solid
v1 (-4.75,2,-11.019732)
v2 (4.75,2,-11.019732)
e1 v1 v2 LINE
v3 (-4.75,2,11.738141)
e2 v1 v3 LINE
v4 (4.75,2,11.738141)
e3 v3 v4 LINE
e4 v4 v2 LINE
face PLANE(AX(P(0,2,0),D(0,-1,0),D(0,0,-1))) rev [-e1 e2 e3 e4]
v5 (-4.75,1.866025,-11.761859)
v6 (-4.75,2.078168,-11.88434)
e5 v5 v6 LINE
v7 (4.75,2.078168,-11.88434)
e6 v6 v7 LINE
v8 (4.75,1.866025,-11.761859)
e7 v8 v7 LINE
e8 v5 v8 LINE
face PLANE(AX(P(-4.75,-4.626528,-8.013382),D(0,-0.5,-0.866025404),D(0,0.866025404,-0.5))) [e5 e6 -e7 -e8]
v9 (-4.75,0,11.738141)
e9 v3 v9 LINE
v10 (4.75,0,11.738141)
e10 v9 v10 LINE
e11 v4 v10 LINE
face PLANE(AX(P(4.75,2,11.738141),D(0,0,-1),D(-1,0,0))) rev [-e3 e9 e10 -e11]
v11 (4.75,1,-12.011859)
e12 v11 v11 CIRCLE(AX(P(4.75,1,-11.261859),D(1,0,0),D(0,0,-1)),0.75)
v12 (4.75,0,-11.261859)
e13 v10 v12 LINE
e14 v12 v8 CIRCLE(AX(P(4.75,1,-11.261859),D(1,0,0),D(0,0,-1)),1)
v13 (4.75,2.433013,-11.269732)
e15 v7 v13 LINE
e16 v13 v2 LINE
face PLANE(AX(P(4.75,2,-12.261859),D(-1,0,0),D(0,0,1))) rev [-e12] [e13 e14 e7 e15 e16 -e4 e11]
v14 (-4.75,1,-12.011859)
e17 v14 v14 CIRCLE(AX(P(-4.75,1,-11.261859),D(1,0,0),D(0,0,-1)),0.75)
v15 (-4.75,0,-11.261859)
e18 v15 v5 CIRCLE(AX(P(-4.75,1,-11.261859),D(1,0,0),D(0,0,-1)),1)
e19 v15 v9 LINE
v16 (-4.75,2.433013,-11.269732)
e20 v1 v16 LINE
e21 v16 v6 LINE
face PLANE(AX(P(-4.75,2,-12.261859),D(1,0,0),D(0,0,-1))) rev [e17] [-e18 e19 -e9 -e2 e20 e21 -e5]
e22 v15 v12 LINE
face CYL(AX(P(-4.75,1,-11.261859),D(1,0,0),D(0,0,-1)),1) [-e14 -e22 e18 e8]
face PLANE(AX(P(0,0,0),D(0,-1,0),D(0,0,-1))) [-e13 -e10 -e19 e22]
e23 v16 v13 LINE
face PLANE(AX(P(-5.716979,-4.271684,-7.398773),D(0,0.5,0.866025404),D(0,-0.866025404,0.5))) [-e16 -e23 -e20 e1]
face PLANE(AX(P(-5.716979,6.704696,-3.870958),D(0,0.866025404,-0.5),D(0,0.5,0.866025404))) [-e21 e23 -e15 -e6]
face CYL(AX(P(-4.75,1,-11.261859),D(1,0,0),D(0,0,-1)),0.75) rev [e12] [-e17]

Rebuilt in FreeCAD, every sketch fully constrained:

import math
import FreeCAD as App
import Part
import Sketcher
Q = App.Units.Quantity

doc = App.newDocument("Part")
body = doc.addObject("PartDesign::Body", "Body")

# Sketch on XZ plane
sketch1 = body.newObject("Sketcher::SketchObject", "Sketch")
sketch1.AttachmentSupport = (doc.getObject("XZ_Plane"), [""])
sketch1.MapMode = "FlatFace"
sketch1.addGeometry(Part.LineSegment(App.Vector(-5, -12, 0), App.Vector(-5, 12, 0)), False)
sketch1.addGeometry(Part.LineSegment(App.Vector(-5, 12, 0), App.Vector(5, 12, 0)), False)
sketch1.addGeometry(Part.LineSegment(App.Vector(5, 12, 0), App.Vector(5, -12, 0)), False)
sketch1.addGeometry(Part.LineSegment(App.Vector(5, -12, 0), App.Vector(-5, -12, 0)), False)
sketch1.addConstraint(Sketcher.Constraint("Coincident", 0, 2, 1, 1))
sketch1.addConstraint(Sketcher.Constraint("Coincident", 1, 2, 2, 1))
sketch1.addConstraint(Sketcher.Constraint("Coincident", 2, 2, 3, 1))
sketch1.addConstraint(Sketcher.Constraint("Coincident", 3, 2, 0, 1))
sketch1.addConstraint(Sketcher.Constraint("Vertical", 0))
sketch1.addConstraint(Sketcher.Constraint("Horizontal", 1))
sketch1.addConstraint(Sketcher.Constraint("Vertical", 2))
sketch1.addConstraint(Sketcher.Constraint("Horizontal", 3))
sketch1.addConstraint(Sketcher.Constraint("DistanceY", 0, 1, 0, 2, 24.0))
sketch1.addConstraint(Sketcher.Constraint("DistanceX", 1, 1, 1, 2, 9.5))
sketch1.addConstraint(Sketcher.Constraint("DistanceX", 0, 2, -1, 1, 4.75))
sketch1.addConstraint(Sketcher.Constraint("DistanceY", -1, 1, 0, 2, 11.738141))
pad1 = body.newObject("PartDesign::Pad", "Pad")
pad1.Profile = sketch1
pad1.Length = 2
pad1.Reversed = True

# Sketch on YZ plane
sketch2 = body.newObject("Sketcher::SketchObject", "Sketch001")
sketch2.AttachmentSupport = (doc.getObject("YZ_Plane"), [""])
sketch2.MapMode = "FlatFace"
sketch2.AttachmentOffset = App.Placement(App.Vector(0, 0, 4.75), App.Rotation())
sketch2.addGeometry(Part.LineSegment(App.Vector(0, -12.26, 0), App.Vector(1, -12.26, 0)), False)
sketch2.addGeometry(Part.ArcOfCircle(Part.Circle(App.Vector(1, -11.26, 0), App.Vector(0, 0, 1), 1), math.radians(-180), math.radians(-90)), False)
sketch2.addGeometry(Part.LineSegment(App.Vector(0, -11.26, 0), App.Vector(0, -12.26, 0)), False)
sketch2.addGeometry(Part.LineSegment(App.Vector(2, -11.84, 0), App.Vector(1.87, -11.76, 0)), False)
sketch2.addGeometry(Part.ArcOfCircle(Part.Circle(App.Vector(1, -11.26, 0), App.Vector(0, 0, 1), 1), math.radians(-90), math.radians(-30)), False)
sketch2.addGeometry(Part.LineSegment(App.Vector(1, -12.26, 0), App.Vector(2, -12.26, 0)), False)
sketch2.addGeometry(Part.LineSegment(App.Vector(2, -12.26, 0), App.Vector(2, -11.84, 0)), False)
sketch2.addGeometry(Part.Circle(App.Vector(1, -11.26, 0), App.Vector(0, 0, 1), 0.75), False)
sketch2.addConstraint(Sketcher.Constraint("Tangent", 0, 2, 1, 2))
sketch2.addConstraint(Sketcher.Constraint("Tangent", 1, 1, 2, 1))
sketch2.addConstraint(Sketcher.Constraint("Coincident", 2, 2, 0, 1))
sketch2.addConstraint(Sketcher.Constraint("Coincident", 3, 2, 4, 2))
sketch2.addConstraint(Sketcher.Constraint("Tangent", 4, 1, 5, 1))
sketch2.addConstraint(Sketcher.Constraint("Coincident", 5, 2, 6, 1))
sketch2.addConstraint(Sketcher.Constraint("Coincident", 6, 2, 3, 1))
sketch2.addConstraint(Sketcher.Constraint("Horizontal", 0))
sketch2.addConstraint(Sketcher.Constraint("Vertical", 2))
sketch2.addConstraint(Sketcher.Constraint("Horizontal", 5))
sketch2.addConstraint(Sketcher.Constraint("Vertical", 6))
sketch2.addConstraint(Sketcher.Constraint("Coincident", 4, 3, 1, 3))
sketch2.addConstraint(Sketcher.Constraint("Coincident", 7, 3, 1, 3))
sketch2.addConstraint(Sketcher.Constraint("Equal", 1, 4))
sketch2.addConstraint(Sketcher.Constraint("PointOnObject", 1, 1, -2))
sketch2.addConstraint(Sketcher.Constraint("Equal", 0, 5))
sketch2.addConstraint(Sketcher.Constraint("Radius", 1, 1.0))
sketch2.addConstraint(Sketcher.Constraint("Diameter", 7, 1.5))
sketch2.addConstraint(Sketcher.Constraint("Angle", 3, Q("150 deg")))
sketch2.addConstraint(Sketcher.Constraint("DistanceY", 3, 2, 4, 3, 0.5))
sketch2.addConstraint(Sketcher.Constraint("DistanceY", 1, 3, -1, 1, 11.261859))
pocket1 = body.newObject("PartDesign::Pocket", "Pocket")
pocket1.Profile = sketch2
pocket1.Type = "ThroughAll"

# Sketch on YZ plane
sketch3 = body.newObject("Sketcher::SketchObject", "Sketch002")
sketch3.AttachmentSupport = (doc.getObject("YZ_Plane"), [""])
sketch3.MapMode = "FlatFace"
sketch3.AttachmentOffset = App.Placement(App.Vector(0, 0, 4.75), App.Rotation())
sketch3.addGeometry(Part.LineSegment(App.Vector(2, -11.84, 0), App.Vector(2.08, -11.88, 0)), False)
sketch3.addGeometry(Part.LineSegment(App.Vector(2.08, -11.88, 0), App.Vector(2.43, -11.27, 0)), False)
sketch3.addGeometry(Part.LineSegment(App.Vector(2.43, -11.27, 0), App.Vector(2, -11.02, 0)), False)
sketch3.addGeometry(Part.LineSegment(App.Vector(2, -11.02, 0), App.Vector(2, -11.84, 0)), False)
sketch3.addConstraint(Sketcher.Constraint("Coincident", 0, 2, 1, 1))
sketch3.addConstraint(Sketcher.Constraint("Coincident", 1, 2, 2, 1))
sketch3.addConstraint(Sketcher.Constraint("Coincident", 2, 2, 3, 1))
sketch3.addConstraint(Sketcher.Constraint("Coincident", 3, 2, 0, 1))
sketch3.addConstraint(Sketcher.Constraint("Vertical", 3))
sketch3.addConstraint(Sketcher.Constraint("Perpendicular", 0, 1))
sketch3.addConstraint(Sketcher.Constraint("Perpendicular", 1, 2))
sketch3.addConstraint(Sketcher.Constraint("Angle", 0, Q("-30 deg")))
sketch3.addConstraint(Sketcher.Constraint("DistanceX", -1, 1, 2, 2, 2.0))
sketch3.addConstraint(Sketcher.Constraint("Distance", 2, 0.5))
sketch3.addConstraint(Sketcher.Constraint("Distance", 0, 0.090261))
sketch3.addConstraint(Sketcher.Constraint("DistanceY", 0, 2, -1, 1, 11.88434))
pad2 = body.newObject("PartDesign::Pad", "Pad001")
pad2.Profile = sketch3
pad2.Length = 9.5
pad2.Reversed = True

doc.recompute()
